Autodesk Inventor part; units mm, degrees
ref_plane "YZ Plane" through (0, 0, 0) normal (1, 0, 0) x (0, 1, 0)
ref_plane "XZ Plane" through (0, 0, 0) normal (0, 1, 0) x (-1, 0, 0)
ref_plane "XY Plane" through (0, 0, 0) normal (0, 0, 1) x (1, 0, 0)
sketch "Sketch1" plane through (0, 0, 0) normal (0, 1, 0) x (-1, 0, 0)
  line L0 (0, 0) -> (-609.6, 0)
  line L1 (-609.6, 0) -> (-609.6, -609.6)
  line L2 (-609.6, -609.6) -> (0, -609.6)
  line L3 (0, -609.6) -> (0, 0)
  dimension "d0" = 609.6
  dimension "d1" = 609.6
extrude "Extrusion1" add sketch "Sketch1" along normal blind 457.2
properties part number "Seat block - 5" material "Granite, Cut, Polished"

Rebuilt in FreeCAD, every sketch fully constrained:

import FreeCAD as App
import Part
import Sketcher

V = App.Vector
Q = App.Units.Quantity


def add_polygon(sketch, points):
    """Adds a closed chain of lines whose ends are joined by coincident constraints."""
    first, n = sketch.GeometryCount, len(points)
    for a, b in zip(points, points[1:] + points[:1]):
        sketch.addGeometry(Part.LineSegment(App.Vector(*a, 0), App.Vector(*b, 0)), False)
    for i in range(n):
        sketch.addConstraint(Sketcher.Constraint("Coincident", first + i, 2, first + (i + 1) % n, 1))

doc = App.newDocument("Part")
body = doc.addObject("PartDesign::Body", "Body")

# Sketch on XZ plane
sketch1 = body.newObject("Sketcher::SketchObject", "Sketch")
sketch1.AttachmentSupport = (doc.getObject("XZ_Plane"), [""])
sketch1.MapMode = "FlatFace"
add_polygon(sketch1, [(0, -610), (0, 0), (610, 0), (610, -610)])  # lines 0-3
sketch1.addConstraint([
    Sketcher.Constraint("Vertical", 0),
    Sketcher.Constraint("Horizontal", 1),
    Sketcher.Constraint("Vertical", 2),
    Sketcher.Constraint("Horizontal", 3),
    Sketcher.Constraint("Coincident", 0, 2, -1, 1),
    Sketcher.Constraint("Equal", 3, 0),
    Sketcher.Constraint("DistanceX", 1, 1, 1, 2, Q("24 in")),
])
pad1 = body.newObject("PartDesign::Pad", "Pad")
pad1.Profile = sketch1
pad1.Length = Q("18 in")
pad1.Reversed = True

doc.recompute()
